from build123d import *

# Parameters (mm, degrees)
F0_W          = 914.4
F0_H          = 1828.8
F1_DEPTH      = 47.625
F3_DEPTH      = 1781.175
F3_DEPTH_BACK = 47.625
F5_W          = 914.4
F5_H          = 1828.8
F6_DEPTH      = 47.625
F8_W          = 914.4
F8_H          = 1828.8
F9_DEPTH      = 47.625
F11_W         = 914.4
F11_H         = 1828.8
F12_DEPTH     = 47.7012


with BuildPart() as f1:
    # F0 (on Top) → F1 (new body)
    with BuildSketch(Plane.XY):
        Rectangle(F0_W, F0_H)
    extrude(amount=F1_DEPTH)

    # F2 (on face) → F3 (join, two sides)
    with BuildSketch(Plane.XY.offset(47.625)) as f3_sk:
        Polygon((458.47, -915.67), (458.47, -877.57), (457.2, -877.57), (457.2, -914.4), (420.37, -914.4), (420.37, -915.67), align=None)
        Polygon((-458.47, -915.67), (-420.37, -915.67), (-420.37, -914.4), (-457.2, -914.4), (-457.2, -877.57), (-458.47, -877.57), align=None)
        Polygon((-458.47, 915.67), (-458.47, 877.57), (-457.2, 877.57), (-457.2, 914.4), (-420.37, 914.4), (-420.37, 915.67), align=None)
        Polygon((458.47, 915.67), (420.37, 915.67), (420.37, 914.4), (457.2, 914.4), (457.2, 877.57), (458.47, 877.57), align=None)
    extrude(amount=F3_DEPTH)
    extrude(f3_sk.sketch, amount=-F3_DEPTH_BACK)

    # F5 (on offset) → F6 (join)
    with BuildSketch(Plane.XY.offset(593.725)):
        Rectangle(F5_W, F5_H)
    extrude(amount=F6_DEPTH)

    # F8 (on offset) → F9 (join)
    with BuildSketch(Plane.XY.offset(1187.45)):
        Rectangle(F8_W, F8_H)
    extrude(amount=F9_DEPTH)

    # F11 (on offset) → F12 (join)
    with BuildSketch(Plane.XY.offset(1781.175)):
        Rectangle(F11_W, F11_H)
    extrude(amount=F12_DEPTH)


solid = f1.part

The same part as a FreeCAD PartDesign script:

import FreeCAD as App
import Part
import Sketcher

V = App.Vector
Q = App.Units.Quantity

doc = App.newDocument("Part")
body = doc.addObject("PartDesign::Body", "Body")

# Sketch on XY plane
sketch1 = body.newObject("Sketcher::SketchObject", "Sketch")
sketch1.AttachmentSupport = (doc.getObject("XY_Plane"), [""])
sketch1.MapMode = "FlatFace"
sketch1.addGeometry([
    Part.LineSegment(V(-457, 914, 0), V(-457, -914, 0)),
    Part.LineSegment(V(-457, -914, 0), V(457, -914, 0)),
    Part.LineSegment(V(457, -914, 0), V(457, 914, 0)),
    Part.LineSegment(V(457, 914, 0), V(-457, 914, 0)),
], False)
sketch1.addConstraint([
    Sketcher.Constraint("Coincident", 0, 2, 1, 1),
    Sketcher.Constraint("Coincident", 1, 2, 2, 1),
    Sketcher.Constraint("Coincident", 2, 2, 3, 1),
    Sketcher.Constraint("Coincident", 3, 2, 0, 1),
    Sketcher.Constraint("Vertical", 0),
    Sketcher.Constraint("Horizontal", 1),
    Sketcher.Constraint("Vertical", 2),
    Sketcher.Constraint("Horizontal", 3),
    Sketcher.Constraint("Symmetric", 0, 2, 2, 2, -1, 1),
    Sketcher.Constraint("DistanceX", 1, 1, 1, 2, Q("36 in")),
    Sketcher.Constraint("DistanceY", 0, 2, 0, 1, Q("72 in")),
])
pad1 = body.newObject("PartDesign::Pad", "Pad")
pad1.Profile = sketch1
pad1.Length = Q("1.875 in")

# Sketch on XY plane
sketch2 = body.newObject("Sketcher::SketchObject", "Sketch001")
sketch2.AttachmentSupport = (doc.getObject("XY_Plane"), [""])
sketch2.MapMode = "FlatFace"
sketch2.AttachmentOffset = App.Placement(V(0, 0, 1.875 * 25.4), App.Rotation())
sketch2.addGeometry([
    Part.LineSegment(V(458.5, -915.7, 0), V(458.5, -877.6, 0)),  # 0
    Part.LineSegment(V(458.5, -877.6, 0), V(457.2, -877.6, 0)),  # 1
    Part.LineSegment(V(457.2, -877.6, 0), V(457.2, -914.4, 0)),  # 2
    Part.LineSegment(V(457.2, -914.4, 0), V(420.4, -914.4, 0)),  # 3
    Part.LineSegment(V(420.4, -914.4, 0), V(420.4, -915.7, 0)),  # 4
    Part.LineSegment(V(420.4, -915.7, 0), V(458.5, -915.7, 0)),  # 5
    Part.LineSegment(V(-458.5, -915.7, 0), V(-420.4, -915.7, 0)),  # 6
    Part.LineSegment(V(-420.4, -915.7, 0), V(-420.4, -914.4, 0)),  # 7
    Part.LineSegment(V(-420.4, -914.4, 0), V(-457.2, -914.4, 0)),  # 8
    Part.LineSegment(V(-457.2, -914.4, 0), V(-457.2, -877.6, 0)),  # 9
    Part.LineSegment(V(-457.2, -877.6, 0), V(-458.5, -877.6, 0)),  # 10
    Part.LineSegment(V(-458.5, -877.6, 0), V(-458.5, -915.7, 0)),  # 11
    Part.LineSegment(V(-458.5, 915.7, 0), V(-458.5, 877.6, 0)),  # 12
    Part.LineSegment(V(-458.5, 877.6, 0), V(-457.2, 877.6, 0)),  # 13
    Part.LineSegment(V(-457.2, 877.6, 0), V(-457.2, 914.4, 0)),  # 14
    Part.LineSegment(V(-457.2, 914.4, 0), V(-420.4, 914.4, 0)),  # 15
    Part.LineSegment(V(-420.4, 914.4, 0), V(-420.4, 915.7, 0)),  # 16
    Part.LineSegment(V(-420.4, 915.7, 0), V(-458.5, 915.7, 0)),  # 17
    Part.LineSegment(V(458.5, 915.7, 0), V(420.4, 915.7, 0)),  # 18
    Part.LineSegment(V(420.4, 915.7, 0), V(420.4, 914.4, 0)),  # 19
    Part.LineSegment(V(420.4, 914.4, 0), V(457.2, 914.4, 0)),  # 20
    Part.LineSegment(V(457.2, 914.4, 0), V(457.2, 877.6, 0)),  # 21
    Part.LineSegment(V(457.2, 877.6, 0), V(458.5, 877.6, 0)),  # 22
    Part.LineSegment(V(458.5, 877.6, 0), V(458.5, 915.7, 0)),  # 23
], False)
sketch2.addConstraint([
    Sketcher.Constraint("Coincident", 0, 2, 1, 1),
    Sketcher.Constraint("Coincident", 1, 2, 2, 1),
    Sketcher.Constraint("Coincident", 2, 2, 3, 1),
    Sketcher.Constraint("Coincident", 3, 2, 4, 1),
    Sketcher.Constraint("Coincident", 4, 2, 5, 1),
    Sketcher.Constraint("Coincident", 5, 2, 0, 1),
    Sketcher.Constraint("Coincident", 6, 2, 7, 1),
    Sketcher.Constraint("Coincident", 7, 2, 8, 1),
    Sketcher.Constraint("Coincident", 8, 2, 9, 1),
    Sketcher.Constraint("Coincident", 9, 2, 10, 1),
    Sketcher.Constraint("Coincident", 10, 2, 11, 1),
    Sketcher.Constraint("Coincident", 11, 2, 6, 1),
    Sketcher.Constraint("Coincident", 12, 2, 13, 1),
    Sketcher.Constraint("Coincident", 13, 2, 14, 1),
    Sketcher.Constraint("Coincident", 14, 2, 15, 1),
    Sketcher.Constraint("Coincident", 15, 2, 16, 1),
    Sketcher.Constraint("Coincident", 16, 2, 17, 1),
    Sketcher.Constraint("Coincident", 17, 2, 12, 1),
    Sketcher.Constraint("Coincident", 18, 2, 19, 1),
    Sketcher.Constraint("Coincident", 19, 2, 20, 1),
    Sketcher.Constraint("Coincident", 20, 2, 21, 1),
    Sketcher.Constraint("Coincident", 21, 2, 22, 1),
    Sketcher.Constraint("Coincident", 22, 2, 23, 1),
    Sketcher.Constraint("Coincident", 23, 2, 18, 1),
    Sketcher.Constraint("Vertical", 0),
    Sketcher.Constraint("Horizontal", 1),
    Sketcher.Constraint("Vertical", 2),
    Sketcher.Constraint("Horizontal", 3),
    Sketcher.Constraint("Vertical", 4),
    Sketcher.Constraint("Horizontal", 5),
    Sketcher.Constraint("Horizontal", 6),
    Sketcher.Constraint("Vertical", 7),
    Sketcher.Constraint("Horizontal", 8),
    Sketcher.Constraint("Vertical", 9),
    Sketcher.Constraint("Horizontal", 10),
    Sketcher.Constraint("Vertical", 11),
    Sketcher.Constraint("Vertical", 12),
    Sketcher.Constraint("Horizontal", 13),
    Sketcher.Constraint("Vertical", 14),
    Sketcher.Constraint("Horizontal", 15),
    Sketcher.Constraint("Vertical", 16),
    Sketcher.Constraint("Horizontal", 17),
    Sketcher.Constraint("Horizontal", 18),
    Sketcher.Constraint("Vertical", 19),
    Sketcher.Constraint("Horizontal", 20),
    Sketcher.Constraint("Vertical", 21),
    Sketcher.Constraint("Horizontal", 22),
    Sketcher.Constraint("Vertical", 23),
    Sketcher.Constraint("Symmetric", 0, 2, 12, 2, -1, 1),
    Sketcher.Constraint("Symmetric", 2, 2, 14, 2, -1, 1),
    Sketcher.Constraint("Symmetric", 4, 2, 16, 2, -1, 1),
    Sketcher.Constraint("Symmetric", 6, 2, 18, 2, -1, 1),
    Sketcher.Constraint("Symmetric", 8, 2, 20, 2, -1, 1),
    Sketcher.Constraint("Symmetric", 10, 2, 22, 2, -1, 1),
    Sketcher.Constraint("Symmetric", 4, 2, 6, 2, -2),
    Sketcher.Constraint("Symmetric", 2, 2, 8, 2, -2),
    Sketcher.Constraint("Symmetric", 0, 2, 10, 2, -2),
    Sketcher.Constraint("Equal", 18, 0),
    Sketcher.Constraint("Equal", 20, 2),
    Sketcher.Constraint("DistanceX", 5, 1, 5, 2, Q("1.5 in")),
    Sketcher.Constraint("DistanceX", -1, 1, 1, 2, Q("18 in")),
    Sketcher.Constraint("DistanceY", 2, 2, -1, 1, Q("36 in")),
    Sketcher.Constraint("DistanceX", 1, 2, 1, 1, Q("0.05 in")),
])
pad2 = body.newObject("PartDesign::Pad", "Pad001")
pad2.Profile = sketch2
pad2.Type = "TwoLengths"
pad2.Length = Q("70.125 in")
pad2.Length2 = Q("1.875 in")

# Sketch on XY plane
sketch3 = body.newObject("Sketcher::SketchObject", "Sketch002")
sketch3.AttachmentSupport = (doc.getObject("XY_Plane"), [""])
sketch3.MapMode = "FlatFace"
sketch3.AttachmentOffset = App.Placement(V(0, 0, 23.375 * 25.4), App.Rotation())
sketch3.addGeometry([
    Part.LineSegment(V(-457, 914, 0), V(-457, -914, 0)),
    Part.LineSegment(V(-457, -914, 0), V(457, -914, 0)),
    Part.LineSegment(V(457, -914, 0), V(457, 914, 0)),
    Part.LineSegment(V(457, 914, 0), V(-457, 914, 0)),
], False)
sketch3.addConstraint([
    Sketcher.Constraint("Coincident", 0, 2, 1, 1),
    Sketcher.Constraint("Coincident", 1, 2, 2, 1),
    Sketcher.Constraint("Coincident", 2, 2, 3, 1),
    Sketcher.Constraint("Coincident", 3, 2, 0, 1),
    Sketcher.Constraint("Vertical", 0),
    Sketcher.Constraint("Horizontal", 1),
    Sketcher.Constraint("Vertical", 2),
    Sketcher.Constraint("Horizontal", 3),
    Sketcher.Constraint("Symmetric", 0, 2, 2, 2, -1, 1),
    Sketcher.Constraint("DistanceX", 1, 1, 1, 2, Q("36 in")),
    Sketcher.Constraint("DistanceY", 0, 2, 0, 1, Q("72 in")),
])
pad3 = body.newObject("PartDesign::Pad", "Pad002")
pad3.Profile = sketch3
pad3.Length = Q("1.875 in")

# Sketch on XY plane
sketch4 = body.newObject("Sketcher::SketchObject", "Sketch003")
sketch4.AttachmentSupport = (doc.getObject("XY_Plane"), [""])
sketch4.MapMode = "FlatFace"
sketch4.AttachmentOffset = App.Placement(V(0, 0, 46.75 * 25.4), App.Rotation())
sketch4.addGeometry([
    Part.LineSegment(V(-457, 914, 0), V(-457, -914, 0)),
    Part.LineSegment(V(-457, -914, 0), V(457, -914, 0)),
    Part.LineSegment(V(457, -914, 0), V(457, 914, 0)),
    Part.LineSegment(V(457, 914, 0), V(-457, 914, 0)),
], False)
sketch4.addConstraint([
    Sketcher.Constraint("Coincident", 0, 2, 1, 1),
    Sketcher.Constraint("Coincident", 1, 2, 2, 1),
    Sketcher.Constraint("Coincident", 2, 2, 3, 1),
    Sketcher.Constraint("Coincident", 3, 2, 0, 1),
    Sketcher.Constraint("Vertical", 0),
    Sketcher.Constraint("Horizontal", 1),
    Sketcher.Constraint("Vertical", 2),
    Sketcher.Constraint("Horizontal", 3),
    Sketcher.Constraint("Symmetric", 0, 2, 2, 2, -1, 1),
    Sketcher.Constraint("DistanceX", 1, 1, 1, 2, Q("36 in")),
    Sketcher.Constraint("DistanceY", 0, 2, 0, 1, Q("72 in")),
])
pad4 = body.newObject("PartDesign::Pad", "Pad003")
pad4.Profile = sketch4
pad4.Length = Q("1.875 in")

# Sketch on XY plane
sketch5 = body.newObject("Sketcher::SketchObject", "Sketch004")
sketch5.AttachmentSupport = (doc.getObject("XY_Plane"), [""])
sketch5.MapMode = "FlatFace"
sketch5.AttachmentOffset = App.Placement(V(0, 0, 70.125 * 25.4), App.Rotation())
sketch5.addGeometry([
    Part.LineSegment(V(-457, 914, 0), V(-457, -914, 0)),
    Part.LineSegment(V(-457, -914, 0), V(457, -914, 0)),
    Part.LineSegment(V(457, -914, 0), V(457, 914, 0)),
    Part.LineSegment(V(457, 914, 0), V(-457, 914, 0)),
], False)
sketch5.addConstraint([
    Sketcher.Constraint("Coincident", 0, 2, 1, 1),
    Sketcher.Constraint("Coincident", 1, 2, 2, 1),
    Sketcher.Constraint("Coincident", 2, 2, 3, 1),
    Sketcher.Constraint("Coincident", 3, 2, 0, 1),
    Sketcher.Constraint("Vertical", 0),
    Sketcher.Constraint("Horizontal", 1),
    Sketcher.Constraint("Vertical", 2),
    Sketcher.Constraint("Horizontal", 3),
    Sketcher.Constraint("Symmetric", 0, 2, 2, 2, -1, 1),
    Sketcher.Constraint("DistanceX", 1, 1, 1, 2, Q("36 in")),
    Sketcher.Constraint("DistanceY", 0, 2, 0, 1, Q("72 in")),
])
pad5 = body.newObject("PartDesign::Pad", "Pad004")
pad5.Profile = sketch5
pad5.Length = Q("1.878 in")

doc.recompute()
